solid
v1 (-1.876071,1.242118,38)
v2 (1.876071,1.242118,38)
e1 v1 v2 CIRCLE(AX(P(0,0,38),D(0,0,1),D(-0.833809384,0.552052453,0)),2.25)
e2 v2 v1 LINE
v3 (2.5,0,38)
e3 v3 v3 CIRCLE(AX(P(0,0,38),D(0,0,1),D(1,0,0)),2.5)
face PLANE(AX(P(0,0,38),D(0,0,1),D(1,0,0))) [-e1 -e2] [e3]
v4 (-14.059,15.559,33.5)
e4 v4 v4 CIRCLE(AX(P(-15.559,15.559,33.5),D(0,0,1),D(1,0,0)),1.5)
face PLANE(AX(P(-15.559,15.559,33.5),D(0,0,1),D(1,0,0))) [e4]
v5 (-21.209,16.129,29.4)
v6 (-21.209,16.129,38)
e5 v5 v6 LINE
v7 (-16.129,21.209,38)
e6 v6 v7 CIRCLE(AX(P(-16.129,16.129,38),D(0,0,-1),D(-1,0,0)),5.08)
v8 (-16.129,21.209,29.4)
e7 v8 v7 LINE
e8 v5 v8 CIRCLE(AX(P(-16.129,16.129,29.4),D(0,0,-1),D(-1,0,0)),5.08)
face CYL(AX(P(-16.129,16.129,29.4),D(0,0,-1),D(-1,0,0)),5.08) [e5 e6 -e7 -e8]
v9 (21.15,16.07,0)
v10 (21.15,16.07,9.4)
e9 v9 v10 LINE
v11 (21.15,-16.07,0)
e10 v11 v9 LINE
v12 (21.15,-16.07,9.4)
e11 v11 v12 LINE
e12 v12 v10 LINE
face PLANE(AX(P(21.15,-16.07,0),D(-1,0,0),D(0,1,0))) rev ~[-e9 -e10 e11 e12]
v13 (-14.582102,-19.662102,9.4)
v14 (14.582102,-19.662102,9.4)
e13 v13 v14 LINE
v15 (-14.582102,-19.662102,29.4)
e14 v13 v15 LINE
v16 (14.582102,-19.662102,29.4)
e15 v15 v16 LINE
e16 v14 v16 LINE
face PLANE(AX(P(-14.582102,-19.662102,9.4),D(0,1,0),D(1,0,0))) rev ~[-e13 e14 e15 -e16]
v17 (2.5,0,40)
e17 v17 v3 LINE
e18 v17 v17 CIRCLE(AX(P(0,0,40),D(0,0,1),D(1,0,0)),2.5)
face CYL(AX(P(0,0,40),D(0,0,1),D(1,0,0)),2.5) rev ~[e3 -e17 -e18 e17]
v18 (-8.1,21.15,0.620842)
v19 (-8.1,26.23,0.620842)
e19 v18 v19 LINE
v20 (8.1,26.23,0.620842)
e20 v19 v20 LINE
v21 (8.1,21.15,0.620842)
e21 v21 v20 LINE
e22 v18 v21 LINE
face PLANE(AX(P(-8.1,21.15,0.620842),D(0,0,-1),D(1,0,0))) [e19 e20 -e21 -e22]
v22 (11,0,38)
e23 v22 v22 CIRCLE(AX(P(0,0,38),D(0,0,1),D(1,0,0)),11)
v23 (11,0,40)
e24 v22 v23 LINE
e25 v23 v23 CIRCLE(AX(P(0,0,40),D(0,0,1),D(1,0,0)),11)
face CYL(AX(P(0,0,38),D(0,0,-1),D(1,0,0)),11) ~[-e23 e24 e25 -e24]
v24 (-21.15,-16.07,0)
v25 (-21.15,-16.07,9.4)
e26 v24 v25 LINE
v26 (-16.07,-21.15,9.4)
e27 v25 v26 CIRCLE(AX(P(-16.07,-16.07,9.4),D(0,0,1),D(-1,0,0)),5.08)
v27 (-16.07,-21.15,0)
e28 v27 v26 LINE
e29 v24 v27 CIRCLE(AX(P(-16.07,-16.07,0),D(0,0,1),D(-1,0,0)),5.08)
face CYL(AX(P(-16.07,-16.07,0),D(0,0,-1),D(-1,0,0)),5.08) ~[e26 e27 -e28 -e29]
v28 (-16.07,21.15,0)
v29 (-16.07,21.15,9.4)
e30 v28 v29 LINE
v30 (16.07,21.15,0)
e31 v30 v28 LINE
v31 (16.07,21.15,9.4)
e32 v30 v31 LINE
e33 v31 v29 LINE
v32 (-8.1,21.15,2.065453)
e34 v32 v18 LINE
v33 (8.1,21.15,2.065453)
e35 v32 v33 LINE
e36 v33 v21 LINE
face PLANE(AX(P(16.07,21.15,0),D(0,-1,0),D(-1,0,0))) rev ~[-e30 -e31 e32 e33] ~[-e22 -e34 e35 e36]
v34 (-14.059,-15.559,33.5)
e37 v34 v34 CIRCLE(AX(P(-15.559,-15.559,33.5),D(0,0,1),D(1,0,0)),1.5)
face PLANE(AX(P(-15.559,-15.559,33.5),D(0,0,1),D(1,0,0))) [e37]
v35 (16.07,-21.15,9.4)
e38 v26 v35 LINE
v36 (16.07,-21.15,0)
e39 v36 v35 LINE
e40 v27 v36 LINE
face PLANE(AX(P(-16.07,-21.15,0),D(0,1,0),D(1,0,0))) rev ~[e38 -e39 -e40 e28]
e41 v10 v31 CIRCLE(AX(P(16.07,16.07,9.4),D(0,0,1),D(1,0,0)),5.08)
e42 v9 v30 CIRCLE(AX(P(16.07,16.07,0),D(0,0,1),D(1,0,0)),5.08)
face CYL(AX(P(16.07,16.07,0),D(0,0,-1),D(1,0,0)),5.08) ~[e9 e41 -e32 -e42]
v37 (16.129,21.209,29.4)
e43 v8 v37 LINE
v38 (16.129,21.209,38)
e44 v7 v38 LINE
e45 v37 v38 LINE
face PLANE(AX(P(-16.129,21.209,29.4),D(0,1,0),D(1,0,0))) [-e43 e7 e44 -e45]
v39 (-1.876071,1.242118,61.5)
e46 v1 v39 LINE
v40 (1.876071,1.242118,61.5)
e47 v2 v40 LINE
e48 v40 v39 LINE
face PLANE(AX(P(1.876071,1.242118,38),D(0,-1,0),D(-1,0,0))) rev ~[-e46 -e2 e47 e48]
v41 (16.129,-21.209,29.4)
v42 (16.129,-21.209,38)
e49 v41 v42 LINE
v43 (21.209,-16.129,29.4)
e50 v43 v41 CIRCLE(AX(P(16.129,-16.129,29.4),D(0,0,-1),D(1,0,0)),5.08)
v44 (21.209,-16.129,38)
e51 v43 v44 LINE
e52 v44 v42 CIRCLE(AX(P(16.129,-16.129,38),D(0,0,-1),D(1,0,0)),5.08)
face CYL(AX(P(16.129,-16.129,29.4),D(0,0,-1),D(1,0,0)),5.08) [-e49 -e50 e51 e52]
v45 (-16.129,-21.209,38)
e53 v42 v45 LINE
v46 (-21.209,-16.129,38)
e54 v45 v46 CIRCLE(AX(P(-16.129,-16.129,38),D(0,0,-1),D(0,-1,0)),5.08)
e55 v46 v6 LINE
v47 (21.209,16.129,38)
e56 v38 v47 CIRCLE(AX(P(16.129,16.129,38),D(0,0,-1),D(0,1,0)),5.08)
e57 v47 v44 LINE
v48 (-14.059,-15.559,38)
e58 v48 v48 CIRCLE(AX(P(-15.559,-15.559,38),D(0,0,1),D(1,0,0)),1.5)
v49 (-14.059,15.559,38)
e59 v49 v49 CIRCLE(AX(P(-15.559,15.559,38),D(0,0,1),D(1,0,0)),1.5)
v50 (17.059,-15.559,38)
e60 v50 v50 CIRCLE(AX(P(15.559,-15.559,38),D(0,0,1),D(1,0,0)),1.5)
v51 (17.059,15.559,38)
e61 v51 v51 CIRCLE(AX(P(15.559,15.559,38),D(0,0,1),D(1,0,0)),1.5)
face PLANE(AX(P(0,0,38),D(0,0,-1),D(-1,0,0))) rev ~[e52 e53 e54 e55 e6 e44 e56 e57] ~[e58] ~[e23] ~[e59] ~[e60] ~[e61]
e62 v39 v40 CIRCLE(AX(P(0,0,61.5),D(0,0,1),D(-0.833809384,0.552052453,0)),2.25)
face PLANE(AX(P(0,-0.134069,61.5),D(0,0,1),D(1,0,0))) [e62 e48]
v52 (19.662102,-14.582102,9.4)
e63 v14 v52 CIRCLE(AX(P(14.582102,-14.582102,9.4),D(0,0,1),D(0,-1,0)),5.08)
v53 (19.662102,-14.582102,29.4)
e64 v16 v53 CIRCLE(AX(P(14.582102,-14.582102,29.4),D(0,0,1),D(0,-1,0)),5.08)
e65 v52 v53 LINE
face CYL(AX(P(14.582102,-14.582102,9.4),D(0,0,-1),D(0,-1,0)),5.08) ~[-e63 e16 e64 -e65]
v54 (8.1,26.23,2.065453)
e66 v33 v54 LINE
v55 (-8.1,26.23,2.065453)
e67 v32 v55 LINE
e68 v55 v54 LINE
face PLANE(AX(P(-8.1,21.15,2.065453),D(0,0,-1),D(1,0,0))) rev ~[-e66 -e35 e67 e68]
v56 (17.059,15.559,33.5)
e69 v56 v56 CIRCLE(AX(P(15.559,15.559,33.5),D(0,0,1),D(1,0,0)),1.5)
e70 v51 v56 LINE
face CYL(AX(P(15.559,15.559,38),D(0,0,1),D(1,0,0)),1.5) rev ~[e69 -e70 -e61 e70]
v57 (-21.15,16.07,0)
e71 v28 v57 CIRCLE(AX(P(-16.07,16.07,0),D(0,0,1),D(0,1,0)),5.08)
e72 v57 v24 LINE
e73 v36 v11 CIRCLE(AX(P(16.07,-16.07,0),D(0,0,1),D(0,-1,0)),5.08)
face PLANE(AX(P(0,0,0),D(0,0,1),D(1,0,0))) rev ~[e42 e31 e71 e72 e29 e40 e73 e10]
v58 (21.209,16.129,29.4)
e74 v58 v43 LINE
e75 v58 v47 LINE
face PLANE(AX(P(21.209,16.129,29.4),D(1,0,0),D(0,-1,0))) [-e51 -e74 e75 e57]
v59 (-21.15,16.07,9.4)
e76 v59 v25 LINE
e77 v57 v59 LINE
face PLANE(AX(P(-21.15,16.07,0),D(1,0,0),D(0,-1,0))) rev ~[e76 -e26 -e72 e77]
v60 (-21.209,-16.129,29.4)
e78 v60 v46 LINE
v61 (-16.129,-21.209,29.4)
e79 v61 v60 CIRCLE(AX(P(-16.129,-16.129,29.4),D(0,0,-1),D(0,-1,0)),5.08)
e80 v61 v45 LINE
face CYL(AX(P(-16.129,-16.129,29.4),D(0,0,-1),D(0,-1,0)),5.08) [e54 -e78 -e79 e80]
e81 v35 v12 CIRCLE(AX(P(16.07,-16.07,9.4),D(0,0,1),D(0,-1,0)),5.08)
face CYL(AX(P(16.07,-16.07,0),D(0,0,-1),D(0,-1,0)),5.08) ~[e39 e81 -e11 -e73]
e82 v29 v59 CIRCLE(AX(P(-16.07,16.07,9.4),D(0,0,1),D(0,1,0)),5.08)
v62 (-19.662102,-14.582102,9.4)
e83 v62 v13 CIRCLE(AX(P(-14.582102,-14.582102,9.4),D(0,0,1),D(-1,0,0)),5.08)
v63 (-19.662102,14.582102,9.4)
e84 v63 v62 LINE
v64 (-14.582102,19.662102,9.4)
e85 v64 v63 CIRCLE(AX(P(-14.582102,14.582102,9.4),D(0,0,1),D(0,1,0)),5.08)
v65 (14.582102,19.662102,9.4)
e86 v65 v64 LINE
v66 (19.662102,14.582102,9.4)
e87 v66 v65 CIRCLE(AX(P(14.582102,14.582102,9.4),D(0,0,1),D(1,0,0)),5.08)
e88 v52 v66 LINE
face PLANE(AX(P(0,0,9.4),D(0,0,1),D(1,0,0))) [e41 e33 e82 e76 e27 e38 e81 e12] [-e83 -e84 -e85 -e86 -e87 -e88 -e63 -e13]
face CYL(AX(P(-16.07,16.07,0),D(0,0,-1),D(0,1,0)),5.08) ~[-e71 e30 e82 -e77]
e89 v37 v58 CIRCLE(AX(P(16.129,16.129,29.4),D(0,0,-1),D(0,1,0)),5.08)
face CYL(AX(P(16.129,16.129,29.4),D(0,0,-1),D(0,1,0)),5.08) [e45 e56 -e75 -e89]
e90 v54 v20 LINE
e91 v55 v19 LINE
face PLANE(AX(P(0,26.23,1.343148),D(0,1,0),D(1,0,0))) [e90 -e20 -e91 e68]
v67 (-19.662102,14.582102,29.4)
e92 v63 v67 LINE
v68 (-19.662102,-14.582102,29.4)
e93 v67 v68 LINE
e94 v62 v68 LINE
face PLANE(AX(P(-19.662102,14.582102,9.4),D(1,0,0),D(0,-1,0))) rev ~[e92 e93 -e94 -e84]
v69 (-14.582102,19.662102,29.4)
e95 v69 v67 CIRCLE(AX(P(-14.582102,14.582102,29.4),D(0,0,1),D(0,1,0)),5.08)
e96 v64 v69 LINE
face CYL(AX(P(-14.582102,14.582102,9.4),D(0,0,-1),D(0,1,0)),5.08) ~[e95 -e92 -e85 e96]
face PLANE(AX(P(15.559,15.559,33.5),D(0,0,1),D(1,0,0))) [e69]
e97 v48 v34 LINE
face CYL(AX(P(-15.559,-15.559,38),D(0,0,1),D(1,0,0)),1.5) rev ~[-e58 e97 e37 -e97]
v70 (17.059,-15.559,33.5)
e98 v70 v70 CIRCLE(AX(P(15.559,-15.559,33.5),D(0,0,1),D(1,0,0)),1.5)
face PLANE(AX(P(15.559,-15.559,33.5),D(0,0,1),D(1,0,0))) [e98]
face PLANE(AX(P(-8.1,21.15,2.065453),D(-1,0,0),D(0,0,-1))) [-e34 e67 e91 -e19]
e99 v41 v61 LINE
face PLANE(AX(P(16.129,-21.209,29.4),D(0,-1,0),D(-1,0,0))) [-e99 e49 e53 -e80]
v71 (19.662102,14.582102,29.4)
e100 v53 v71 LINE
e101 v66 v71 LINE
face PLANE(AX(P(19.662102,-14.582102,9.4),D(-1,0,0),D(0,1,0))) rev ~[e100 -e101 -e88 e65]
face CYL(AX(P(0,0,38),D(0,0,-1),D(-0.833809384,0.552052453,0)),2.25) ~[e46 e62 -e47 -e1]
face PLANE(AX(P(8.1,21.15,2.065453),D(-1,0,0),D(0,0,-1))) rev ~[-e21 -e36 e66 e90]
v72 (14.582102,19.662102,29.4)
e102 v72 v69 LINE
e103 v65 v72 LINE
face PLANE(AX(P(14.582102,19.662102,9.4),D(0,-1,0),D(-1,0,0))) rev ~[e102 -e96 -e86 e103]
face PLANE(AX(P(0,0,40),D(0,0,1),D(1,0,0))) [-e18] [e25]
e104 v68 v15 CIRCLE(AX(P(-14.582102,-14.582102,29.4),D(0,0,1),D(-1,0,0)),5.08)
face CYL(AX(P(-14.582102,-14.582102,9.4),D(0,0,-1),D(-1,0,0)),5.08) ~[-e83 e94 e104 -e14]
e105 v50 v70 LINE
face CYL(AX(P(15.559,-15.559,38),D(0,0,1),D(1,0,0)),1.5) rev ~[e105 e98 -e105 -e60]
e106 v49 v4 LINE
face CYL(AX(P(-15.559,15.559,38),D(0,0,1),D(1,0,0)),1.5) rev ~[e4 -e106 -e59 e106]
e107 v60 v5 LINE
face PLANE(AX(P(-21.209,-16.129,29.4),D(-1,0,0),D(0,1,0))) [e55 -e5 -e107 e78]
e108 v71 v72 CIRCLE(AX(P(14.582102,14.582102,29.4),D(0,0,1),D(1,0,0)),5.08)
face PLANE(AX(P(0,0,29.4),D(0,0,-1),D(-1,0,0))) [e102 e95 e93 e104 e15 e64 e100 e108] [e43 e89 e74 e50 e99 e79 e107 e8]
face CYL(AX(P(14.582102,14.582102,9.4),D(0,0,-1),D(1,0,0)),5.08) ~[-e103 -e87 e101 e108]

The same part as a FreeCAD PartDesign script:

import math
import FreeCAD as App
import Part
import Sketcher

V = App.Vector
Q = App.Units.Quantity


def add_polygon(sketch, points):
    """Adds a closed chain of lines whose ends are joined by coincident constraints."""
    first, n = sketch.GeometryCount, len(points)
    for a, b in zip(points, points[1:] + points[:1]):
        sketch.addGeometry(Part.LineSegment(App.Vector(*a, 0), App.Vector(*b, 0)), False)
    for i in range(n):
        sketch.addConstraint(Sketcher.Constraint("Coincident", first + i, 2, first + (i + 1) % n, 1))

doc = App.newDocument("Part")
body = doc.addObject("PartDesign::Body", "Body")

# Sketch on XY plane
sketch1 = doc.addObject("Sketcher::SketchObject", "Sketch")
body.addObject(sketch1)
sketch1.AttachmentSupport = (doc.XY_Plane, [""])
sketch1.MapMode = "FlatFace"
sketch1.addGeometry([
    Part.LineSegment(V(-16, -21, 0), V(16, -21, 0)),  # 0
    Part.ArcOfCircle(Part.Circle(V(16, -16, 0), V(0, 0, 1), 5), math.radians(-90), math.radians(0)),  # 1
    Part.LineSegment(V(21, -16, 0), V(21, 16, 0)),  # 2
    Part.ArcOfCircle(Part.Circle(V(16, 16, 0), V(0, 0, 1), 5), math.radians(0), math.radians(90)),  # 3
    Part.LineSegment(V(16, 21, 0), V(-16, 21, 0)),  # 4
    Part.ArcOfCircle(Part.Circle(V(-16, 16, 0), V(0, 0, 1), 5), math.radians(90), math.radians(180)),  # 5
    Part.LineSegment(V(-21, 16, 0), V(-21, -16, 0)),  # 6
    Part.ArcOfCircle(Part.Circle(V(-16, -16, 0), V(0, 0, 1), 5), math.radians(-180), math.radians(-90)),  # 7
], False)
sketch1.addConstraint([
    Sketcher.Constraint("Tangent", 0, 2, 1, 1),
    Sketcher.Constraint("Tangent", 1, 2, 2, 1),
    Sketcher.Constraint("Tangent", 2, 2, 3, 1),
    Sketcher.Constraint("Tangent", 3, 2, 4, 1),
    Sketcher.Constraint("Tangent", 4, 2, 5, 1),
    Sketcher.Constraint("Tangent", 5, 2, 6, 1),
    Sketcher.Constraint("Tangent", 6, 2, 7, 1),
    Sketcher.Constraint("Tangent", 7, 2, 0, 1),
    Sketcher.Constraint("Horizontal", 0),
    Sketcher.Constraint("Vertical", 2),
    Sketcher.Constraint("Horizontal", 4),
    Sketcher.Constraint("Vertical", 6),
    Sketcher.Constraint("Equal", 1, 3),
    Sketcher.Constraint("Equal", 3, 5),
    Sketcher.Constraint("Equal", 5, 7),
    Sketcher.Constraint("Symmetric", 1, 3, 5, 3, -1, 1),
    Sketcher.Constraint("Equal", 4, 2),
    Sketcher.Constraint("Radius", 1, Q("5.08 mm")),
    Sketcher.Constraint("DistanceX", 0, 1, 0, 2, Q("32.14 mm")),
])
pad1 = doc.addObject("PartDesign::Pad", "Pad")
body.addObject(pad1)
pad1.Profile = sketch1
pad1.Length = 9.4

# Sketch on XY plane
sketch2 = doc.addObject("Sketcher::SketchObject", "Sketch001")
body.addObject(sketch2)
sketch2.AttachmentSupport = (doc.XY_Plane, [""])
sketch2.MapMode = "FlatFace"
sketch2.AttachmentOffset = App.Placement(V(0, 0, 9.4), App.Rotation())
sketch2.addGeometry([
    Part.LineSegment(V(-15, -20, 0), V(15, -20, 0)),  # 0
    Part.ArcOfCircle(Part.Circle(V(15, -15, 0), V(0, 0, 1), 5), math.radians(-90), math.radians(0)),  # 1
    Part.LineSegment(V(20, -15, 0), V(20, 15, 0)),  # 2
    Part.ArcOfCircle(Part.Circle(V(15, 15, 0), V(0, 0, 1), 5), math.radians(0), math.radians(90)),  # 3
    Part.LineSegment(V(15, 20, 0), V(-15, 20, 0)),  # 4
    Part.ArcOfCircle(Part.Circle(V(-15, 15, 0), V(0, 0, 1), 5), math.radians(90), math.radians(180)),  # 5
    Part.LineSegment(V(-20, 15, 0), V(-20, -15, 0)),  # 6
    Part.ArcOfCircle(Part.Circle(V(-15, -15, 0), V(0, 0, 1), 5), math.radians(180), math.radians(270)),  # 7
], False)
sketch2.addConstraint([
    Sketcher.Constraint("Tangent", 0, 2, 1, 1),
    Sketcher.Constraint("Tangent", 1, 2, 2, 1),
    Sketcher.Constraint("Tangent", 2, 2, 3, 1),
    Sketcher.Constraint("Tangent", 3, 2, 4, 1),
    Sketcher.Constraint("Tangent", 4, 2, 5, 1),
    Sketcher.Constraint("Tangent", 5, 2, 6, 1),
    Sketcher.Constraint("Tangent", 6, 2, 7, 1),
    Sketcher.Constraint("Tangent", 7, 2, 0, 1),
    Sketcher.Constraint("Horizontal", 0),
    Sketcher.Constraint("Vertical", 2),
    Sketcher.Constraint("Horizontal", 4),
    Sketcher.Constraint("Vertical", 6),
    Sketcher.Constraint("Equal", 1, 3),
    Sketcher.Constraint("Equal", 3, 5),
    Sketcher.Constraint("Equal", 5, 7),
    Sketcher.Constraint("Symmetric", 1, 3, 5, 3, -1, 1),
    Sketcher.Constraint("Equal", 4, 2),
    Sketcher.Constraint("Radius", 1, Q("5.08 mm")),
    Sketcher.Constraint("DistanceX", 0, 1, 0, 2, Q("29.164205 mm")),
])
pad2 = doc.addObject("PartDesign::Pad", "Pad001")
body.addObject(pad2)
pad2.Profile = sketch2
pad2.Length = 20

# Sketch on XY plane
sketch3 = doc.addObject("Sketcher::SketchObject", "Sketch002")
body.addObject(sketch3)
sketch3.AttachmentSupport = (doc.XY_Plane, [""])
sketch3.MapMode = "FlatFace"
sketch3.AttachmentOffset = App.Placement(V(0, 0, 29.4), App.Rotation())
sketch3.addGeometry([
    Part.LineSegment(V(-16, -21, 0), V(16, -21, 0)),  # 0
    Part.ArcOfCircle(Part.Circle(V(16, -16, 0), V(0, 0, 1), 5), math.radians(-90), math.radians(0)),  # 1
    Part.LineSegment(V(21, -16, 0), V(21, 16, 0)),  # 2
    Part.ArcOfCircle(Part.Circle(V(16, 16, 0), V(0, 0, 1), 5), math.radians(0), math.radians(90)),  # 3
    Part.LineSegment(V(16, 21, 0), V(-16, 21, 0)),  # 4
    Part.ArcOfCircle(Part.Circle(V(-16, 16, 0), V(0, 0, 1), 5), math.radians(90), math.radians(180)),  # 5
    Part.LineSegment(V(-21, 16, 0), V(-21, -16, 0)),  # 6
    Part.ArcOfCircle(Part.Circle(V(-16, -16, 0), V(0, 0, 1), 5), math.radians(-180), math.radians(-90)),  # 7
], False)
sketch3.addConstraint([
    Sketcher.Constraint("Tangent", 0, 2, 1, 1),
    Sketcher.Constraint("Tangent", 1, 2, 2, 1),
    Sketcher.Constraint("Tangent", 2, 2, 3, 1),
    Sketcher.Constraint("Tangent", 3, 2, 4, 1),
    Sketcher.Constraint("Tangent", 4, 2, 5, 1),
    Sketcher.Constraint("Tangent", 5, 2, 6, 1),
    Sketcher.Constraint("Tangent", 6, 2, 7, 1),
    Sketcher.Constraint("Tangent", 7, 2, 0, 1),
    Sketcher.Constraint("Horizontal", 0),
    Sketcher.Constraint("Vertical", 2),
    Sketcher.Constraint("Horizontal", 4),
    Sketcher.Constraint("Vertical", 6),
    Sketcher.Constraint("Equal", 1, 3),
    Sketcher.Constraint("Equal", 3, 5),
    Sketcher.Constraint("Equal", 5, 7),
    Sketcher.Constraint("Symmetric", 1, 3, 5, 3, -1, 1),
    Sketcher.Constraint("Equal", 4, 2),
    Sketcher.Constraint("Radius", 1, Q("5.08 mm")),
    Sketcher.Constraint("DistanceX", 0, 1, 0, 2, Q("32.258 mm")),
])
pad3 = doc.addObject("PartDesign::Pad", "Pad002")
body.addObject(pad3)
pad3.Profile = sketch3
pad3.Length = 8.6

# Sketch on XY plane
sketch4 = doc.addObject("Sketcher::SketchObject", "Sketch003")
body.addObject(sketch4)
sketch4.AttachmentSupport = (doc.XY_Plane, [""])
sketch4.MapMode = "FlatFace"
sketch4.AttachmentOffset = App.Placement(V(0, 0, 38), App.Rotation())
sketch4.addGeometry(Part.Circle(V(0, 0, 0), V(0, 0, 1), 11), False)
sketch4.addConstraint([
    Sketcher.Constraint("Coincident", 0, 3, -1, 1),
    Sketcher.Constraint("Diameter", 0, Q("22 mm")),
])
pad4 = doc.addObject("PartDesign::Pad", "Pad003")
body.addObject(pad4)
pad4.Profile = sketch4
pad4.Length = 2

# Sketch on XY plane
sketch5 = doc.addObject("Sketcher::SketchObject", "Sketch004")
body.addObject(sketch5)
sketch5.AttachmentSupport = (doc.XY_Plane, [""])
sketch5.MapMode = "FlatFace"
sketch5.AttachmentOffset = App.Placement(V(0, 0, 40), App.Rotation())
sketch5.addGeometry(Part.Circle(V(0, 0, 0), V(0, 0, 1), 2.5), False)
sketch5.addConstraint([
    Sketcher.Constraint("Coincident", 0, 3, -1, 1),
    Sketcher.Constraint("Diameter", 0, Q("5 mm")),
])
pocket1 = doc.addObject("PartDesign::Pocket", "Pocket")
body.addObject(pocket1)
pocket1.Profile = sketch5
pocket1.Length = 2

# Sketch on XY plane
sketch6 = doc.addObject("Sketcher::SketchObject", "Sketch005")
body.addObject(sketch6)
sketch6.AttachmentSupport = (doc.XY_Plane, [""])
sketch6.MapMode = "FlatFace"
sketch6.AttachmentOffset = App.Placement(V(0, 0, 38), App.Rotation())
sketch6.addGeometry([
    Part.LineSegment(V(1.9, 1.2, 0), V(-1.9, 1.2, 0)),
    Part.ArcOfCircle(Part.Circle(V(0, 0, 0), V(0, 0, 1), 2.2), math.radians(146), math.radians(394)),
], False)
sketch6.addConstraint([
    Sketcher.Constraint("Coincident", 0, 1, 1, 2),
    Sketcher.Constraint("Coincident", 1, 1, 0, 2),
    Sketcher.Constraint("Horizontal", 0),
    Sketcher.Constraint("Coincident", 1, 3, -1, 1),
    Sketcher.Constraint("Radius", 1, Q("2.25 mm")),
    Sketcher.Constraint("DistanceX", 0, 2, 0, 1, Q("3.752142 mm")),
])
pad5 = doc.addObject("PartDesign::Pad", "Pad004")
body.addObject(pad5)
pad5.Profile = sketch6
pad5.Length = 23.5

# Sketch on XZ plane
sketch7 = doc.addObject("Sketcher::SketchObject", "Sketch006")
body.addObject(sketch7)
sketch7.AttachmentSupport = (doc.XZ_Plane, [""])
sketch7.MapMode = "FlatFace"
sketch7.AttachmentOffset = App.Placement(V(0, 0, -21.15), App.Rotation())
add_polygon(sketch7, [(-8.1, 0.6), (-8.1, 2.1), (8.1, 2.1), (8.1, 0.6)])  # lines 0-3
sketch7.addConstraint([
    Sketcher.Constraint("Vertical", 0),
    Sketcher.Constraint("Horizontal", 1),
    Sketcher.Constraint("Vertical", 2),
    Sketcher.Constraint("Horizontal", 3),
    Sketcher.Constraint("DistanceX", 1, 1, 1, 2, Q("16.2 mm")),
    Sketcher.Constraint("DistanceX", 0, 2, -1, 1, Q("8.1 mm")),
    Sketcher.Constraint("DistanceY", 0, 1, 0, 2, Q("1.444611 mm")),
    Sketcher.Constraint("DistanceY", -1, 1, 0, 2, Q("2.065453 mm")),
])
pad6 = doc.addObject("PartDesign::Pad", "Pad005")
body.addObject(pad6)
pad6.Profile = sketch7
pad6.Length = 5.08
pad6.Reversed = True

# Sketch on XY plane
sketch8 = doc.addObject("Sketcher::SketchObject", "Sketch007")
body.addObject(sketch8)
sketch8.AttachmentSupport = (doc.XY_Plane, [""])
sketch8.MapMode = "FlatFace"
sketch8.AttachmentOffset = App.Placement(V(0, 0, 38), App.Rotation())
sketch8.addGeometry([
    Part.Circle(V(-15.6, 15.6, 0), V(0, 0, 1), 1.5),
    Part.Circle(V(15.6, 15.6, 0), V(0, 0, 1), 1.5),
    Part.Circle(V(15.6, -15.6, 0), V(0, 0, 1), 1.5),
    Part.Circle(V(-15.6, -15.6, 0), V(0, 0, 1), 1.5),
], False)
sketch8.addConstraint([
    Sketcher.Constraint("Equal", 0, 1),
    Sketcher.Constraint("Equal", 1, 2),
    Sketcher.Constraint("Equal", 2, 3),
    Sketcher.Constraint("Symmetric", 0, 3, 2, 3, -1, 1),
    Sketcher.Constraint("Symmetric", 1, 3, 3, 3, -1, 1),
    Sketcher.Constraint("Symmetric", 0, 3, 1, 3, -2),
    Sketcher.Constraint("Diameter", 0, Q("3 mm")),
    Sketcher.Constraint("DistanceX", 0, 3, -1, 1, Q("15.559 mm")),
    Sketcher.Constraint("DistanceY", -1, 1, 0, 3, Q("15.559 mm")),
])
pocket2 = doc.addObject("PartDesign::Pocket", "Pocket001")
body.addObject(pocket2)
pocket2.Profile = sketch8
pocket2.Length = 4.5

doc.recompute()
